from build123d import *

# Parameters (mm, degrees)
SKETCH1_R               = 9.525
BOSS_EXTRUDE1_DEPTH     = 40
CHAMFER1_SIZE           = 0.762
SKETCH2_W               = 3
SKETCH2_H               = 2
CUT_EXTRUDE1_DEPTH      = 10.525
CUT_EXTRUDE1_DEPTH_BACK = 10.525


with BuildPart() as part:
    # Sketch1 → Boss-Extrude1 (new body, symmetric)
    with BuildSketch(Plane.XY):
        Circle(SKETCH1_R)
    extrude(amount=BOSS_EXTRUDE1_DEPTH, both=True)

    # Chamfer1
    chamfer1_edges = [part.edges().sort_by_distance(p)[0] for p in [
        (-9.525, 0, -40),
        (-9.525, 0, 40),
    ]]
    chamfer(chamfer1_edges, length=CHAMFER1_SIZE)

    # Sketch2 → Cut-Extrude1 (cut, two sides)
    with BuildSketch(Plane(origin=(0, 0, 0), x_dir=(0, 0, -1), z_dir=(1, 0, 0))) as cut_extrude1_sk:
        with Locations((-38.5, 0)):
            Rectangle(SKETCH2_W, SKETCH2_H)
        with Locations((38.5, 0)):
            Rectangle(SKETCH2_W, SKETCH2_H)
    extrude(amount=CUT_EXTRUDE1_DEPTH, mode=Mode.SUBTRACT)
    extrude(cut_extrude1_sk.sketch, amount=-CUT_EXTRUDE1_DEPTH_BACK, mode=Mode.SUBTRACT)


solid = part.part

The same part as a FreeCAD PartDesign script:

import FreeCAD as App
import Part
import Sketcher

V = App.Vector
Q = App.Units.Quantity


def edges_at(feature, points):
    """Names of the edges that pass closest to the given points."""
    edges = feature.Shape.Edges
    near = lambda p: min(range(len(edges)), key=lambda i: edges[i].distToShape(Part.Vertex(*p))[0])
    return sorted({f"Edge{near(p) + 1}" for p in points})

doc = App.newDocument("Part")
body = doc.addObject("PartDesign::Body", "Body")

sketch1 = body.newObject("Sketcher::SketchObject", "Sketch")
sketch1.AttachmentSupport = (doc.getObject("XY_Plane"), [""])
sketch1.MapMode = "FlatFace"
sketch1.addGeometry(Part.Circle(V(0, 0, 0), V(0, 0, 1), 9.525), False)
sketch1.addConstraint(Sketcher.Constraint("Coincident", 0, 3, -1, 1))
sketch1.addConstraint(Sketcher.Constraint("Diameter", 0, Q("19.05 mm")))
pad1 = body.newObject("PartDesign::Pad", "Pad")
pad1.Profile = sketch1
pad1.Length = 80
pad1.Midplane = True
doc.recompute()

chamfer = body.newObject("PartDesign::Chamfer", "Chamfer")
chamfer.Base = (pad1, edges_at(pad1, [(-9.525, 0, -40), (-9.525, 0, 40)]))
chamfer.Size = 0.762

sketch2 = body.newObject("Sketcher::SketchObject", "Sketch001")
sketch2.AttachmentSupport = (doc.getObject("YZ_Plane"), [""])
sketch2.MapMode = "FlatFace"
sketch2.addGeometry(Part.LineSegment(V(1, 40, 0), V(-1, 40, 0)), False)
sketch2.addGeometry(Part.LineSegment(V(-1, 40, 0), V(-1, 37, 0)), False)
sketch2.addGeometry(Part.LineSegment(V(-1, 37, 0), V(1, 37, 0)), False)
sketch2.addGeometry(Part.LineSegment(V(1, 37, 0), V(1, 40, 0)), False)
sketch2.addGeometry(Part.LineSegment(V(1, -37, 0), V(-1, -37, 0)), False)
sketch2.addGeometry(Part.LineSegment(V(-1, -37, 0), V(-1, -40, 0)), False)
sketch2.addGeometry(Part.LineSegment(V(-1, -40, 0), V(1, -40, 0)), False)
sketch2.addGeometry(Part.LineSegment(V(1, -40, 0), V(1, -37, 0)), False)
sketch2.addConstraint(Sketcher.Constraint("Coincident", 0, 2, 1, 1))
sketch2.addConstraint(Sketcher.Constraint("Coincident", 1, 2, 2, 1))
sketch2.addConstraint(Sketcher.Constraint("Coincident", 2, 2, 3, 1))
sketch2.addConstraint(Sketcher.Constraint("Coincident", 3, 2, 0, 1))
sketch2.addConstraint(Sketcher.Constraint("Coincident", 4, 2, 5, 1))
sketch2.addConstraint(Sketcher.Constraint("Coincident", 5, 2, 6, 1))
sketch2.addConstraint(Sketcher.Constraint("Coincident", 6, 2, 7, 1))
sketch2.addConstraint(Sketcher.Constraint("Coincident", 7, 2, 4, 1))
sketch2.addConstraint(Sketcher.Constraint("Horizontal", 0))
sketch2.addConstraint(Sketcher.Constraint("Vertical", 1))
sketch2.addConstraint(Sketcher.Constraint("Horizontal", 2))
sketch2.addConstraint(Sketcher.Constraint("Vertical", 3))
sketch2.addConstraint(Sketcher.Constraint("Horizontal", 4))
sketch2.addConstraint(Sketcher.Constraint("Vertical", 5))
sketch2.addConstraint(Sketcher.Constraint("Horizontal", 6))
sketch2.addConstraint(Sketcher.Constraint("Vertical", 7))
sketch2.addConstraint(Sketcher.Constraint("Symmetric", 2, 2, 4, 2, -1, 1))
sketch2.addConstraint(Sketcher.Constraint("Symmetric", 0, 2, 6, 2, -1, 1))
sketch2.addConstraint(Sketcher.Constraint("Vertical", 1, 2, 4, 2))
sketch2.addConstraint(Sketcher.Constraint("DistanceX", 0, 2, 0, 1, Q("2 mm")))
sketch2.addConstraint(Sketcher.Constraint("DistanceY", 1, 2, 1, 1, Q("3 mm")))
sketch2.addConstraint(Sketcher.Constraint("DistanceY", -1, 1, 0, 2, Q("40 mm")))
pocket1 = body.newObject("PartDesign::Pocket", "Pocket")
pocket1.Profile = sketch2
pocket1.Type = "ThroughAll"
pocket1.Midplane = True

doc.recompute()
